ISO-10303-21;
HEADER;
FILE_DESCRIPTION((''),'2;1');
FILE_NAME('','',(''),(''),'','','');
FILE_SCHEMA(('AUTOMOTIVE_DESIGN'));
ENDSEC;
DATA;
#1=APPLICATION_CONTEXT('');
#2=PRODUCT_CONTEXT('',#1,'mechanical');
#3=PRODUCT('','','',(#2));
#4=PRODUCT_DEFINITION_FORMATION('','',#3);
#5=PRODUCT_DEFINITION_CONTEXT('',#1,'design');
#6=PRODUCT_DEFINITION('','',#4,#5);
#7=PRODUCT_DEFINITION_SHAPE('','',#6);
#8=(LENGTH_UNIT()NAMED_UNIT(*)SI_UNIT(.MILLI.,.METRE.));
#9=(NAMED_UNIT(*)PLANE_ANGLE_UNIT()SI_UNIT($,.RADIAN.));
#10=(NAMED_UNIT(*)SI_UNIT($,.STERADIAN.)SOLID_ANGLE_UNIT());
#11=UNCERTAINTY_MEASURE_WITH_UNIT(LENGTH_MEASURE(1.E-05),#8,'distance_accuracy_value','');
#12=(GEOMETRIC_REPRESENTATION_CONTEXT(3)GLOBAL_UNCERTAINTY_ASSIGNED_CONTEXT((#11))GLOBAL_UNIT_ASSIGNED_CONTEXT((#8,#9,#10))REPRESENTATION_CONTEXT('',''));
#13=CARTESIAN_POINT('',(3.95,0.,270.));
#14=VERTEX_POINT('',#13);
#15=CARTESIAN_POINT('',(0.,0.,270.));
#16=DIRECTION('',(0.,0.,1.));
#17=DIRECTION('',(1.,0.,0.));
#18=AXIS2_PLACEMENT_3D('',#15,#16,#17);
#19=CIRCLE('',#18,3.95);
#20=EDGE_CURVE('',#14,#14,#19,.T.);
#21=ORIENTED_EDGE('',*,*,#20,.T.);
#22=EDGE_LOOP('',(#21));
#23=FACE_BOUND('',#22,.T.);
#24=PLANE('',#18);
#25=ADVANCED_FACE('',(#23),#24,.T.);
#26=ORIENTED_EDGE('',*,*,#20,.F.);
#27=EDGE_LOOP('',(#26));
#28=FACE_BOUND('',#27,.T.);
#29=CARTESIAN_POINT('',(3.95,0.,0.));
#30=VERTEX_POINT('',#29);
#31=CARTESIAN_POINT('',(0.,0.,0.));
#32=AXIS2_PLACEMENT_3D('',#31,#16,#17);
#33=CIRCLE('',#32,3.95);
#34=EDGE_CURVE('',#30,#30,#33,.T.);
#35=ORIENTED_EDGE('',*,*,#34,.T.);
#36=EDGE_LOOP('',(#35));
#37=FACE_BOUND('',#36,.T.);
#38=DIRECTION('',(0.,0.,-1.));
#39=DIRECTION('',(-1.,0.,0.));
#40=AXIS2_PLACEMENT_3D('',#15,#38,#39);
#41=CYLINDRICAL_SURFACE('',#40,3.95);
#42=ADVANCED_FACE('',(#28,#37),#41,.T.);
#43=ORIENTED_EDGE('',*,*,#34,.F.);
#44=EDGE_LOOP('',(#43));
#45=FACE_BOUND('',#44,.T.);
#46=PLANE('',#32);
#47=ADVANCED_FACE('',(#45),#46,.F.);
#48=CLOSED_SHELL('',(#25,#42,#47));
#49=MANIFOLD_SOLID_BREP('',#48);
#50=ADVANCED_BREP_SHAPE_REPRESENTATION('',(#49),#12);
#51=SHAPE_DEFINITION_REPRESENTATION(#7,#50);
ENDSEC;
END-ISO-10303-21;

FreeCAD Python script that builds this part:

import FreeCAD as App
import Part
import Sketcher
from FreeCAD import Vector

doc = App.newDocument("Part")
body = doc.addObject("PartDesign::Body", "Body")

# Sketch on XY plane
sketch1 = doc.addObject("Sketcher::SketchObject", "Sketch")
body.addObject(sketch1)
sketch1.AttachmentSupport = (doc.XY_Plane, [""])
sketch1.MapMode = "FlatFace"
sketch1.addGeometry(Part.Circle(Vector(0, 0, 0), Vector(0, 0, 1), 3.95), False)
sketch1.addConstraint([
    Sketcher.Constraint("Coincident", 0, 3, -1, 1),
    Sketcher.Constraint("Diameter", 0, 7.9),
])
pad1 = doc.addObject("PartDesign::Pad", "Pad")
body.addObject(pad1)
pad1.Profile = sketch1
pad1.Length = 270

doc.recompute()
